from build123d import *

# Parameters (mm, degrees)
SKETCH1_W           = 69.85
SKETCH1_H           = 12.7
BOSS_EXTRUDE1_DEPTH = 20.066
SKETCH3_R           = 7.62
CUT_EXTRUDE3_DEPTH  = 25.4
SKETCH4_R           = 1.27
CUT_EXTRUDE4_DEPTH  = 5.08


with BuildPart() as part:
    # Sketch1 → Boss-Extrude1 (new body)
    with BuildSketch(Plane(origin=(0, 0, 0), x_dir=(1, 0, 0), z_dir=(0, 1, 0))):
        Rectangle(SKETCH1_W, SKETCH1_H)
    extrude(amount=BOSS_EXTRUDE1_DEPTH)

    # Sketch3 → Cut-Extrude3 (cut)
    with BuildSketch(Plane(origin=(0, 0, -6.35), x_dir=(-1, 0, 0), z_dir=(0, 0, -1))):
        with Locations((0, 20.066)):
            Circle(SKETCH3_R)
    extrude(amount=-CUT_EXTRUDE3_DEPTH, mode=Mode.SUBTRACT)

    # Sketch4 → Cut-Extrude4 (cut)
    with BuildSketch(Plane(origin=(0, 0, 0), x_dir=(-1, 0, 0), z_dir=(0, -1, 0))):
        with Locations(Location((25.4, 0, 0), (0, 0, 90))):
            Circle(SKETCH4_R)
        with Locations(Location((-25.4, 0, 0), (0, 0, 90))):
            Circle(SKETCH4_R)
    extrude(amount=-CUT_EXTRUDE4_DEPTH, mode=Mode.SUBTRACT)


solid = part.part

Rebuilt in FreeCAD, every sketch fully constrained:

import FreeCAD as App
import Part
import Sketcher
from FreeCAD import Vector
Q = App.Units.Quantity

doc = App.newDocument("Part")
body = doc.addObject("PartDesign::Body", "Body")

sketch1 = body.newObject("Sketcher::SketchObject", "Sketch")
sketch1.AttachmentSupport = (doc.getObject("XZ_Plane"), [""])
sketch1.MapMode = "FlatFace"
sketch1.addGeometry([
    Part.LineSegment(Vector(-35, -6, 0), Vector(-35, 6, 0)),
    Part.LineSegment(Vector(-35, 6, 0), Vector(35, 6, 0)),
    Part.LineSegment(Vector(35, 6, 0), Vector(35, -6, 0)),
    Part.LineSegment(Vector(35, -6, 0), Vector(-35, -6, 0)),
], False)
sketch1.addConstraint([
    Sketcher.Constraint("Coincident", 0, 2, 1, 1),
    Sketcher.Constraint("Coincident", 1, 2, 2, 1),
    Sketcher.Constraint("Coincident", 2, 2, 3, 1),
    Sketcher.Constraint("Coincident", 3, 2, 0, 1),
    Sketcher.Constraint("Vertical", 0),
    Sketcher.Constraint("Horizontal", 1),
    Sketcher.Constraint("Vertical", 2),
    Sketcher.Constraint("Horizontal", 3),
    Sketcher.Constraint("Symmetric", 0, 2, 2, 2, -1, 1),
    Sketcher.Constraint("DistanceY", 0, 1, 0, 2, Q("0.5 in")),
    Sketcher.Constraint("DistanceX", 1, 1, 1, 2, Q("2.75 in")),
])
pad1 = body.newObject("PartDesign::Pad", "Pad")
pad1.Profile = sketch1
pad1.Length = Q("0.79 in")
pad1.Reversed = True

sketch2 = body.newObject("Sketcher::SketchObject", "Sketch001")
sketch2.AttachmentSupport = (doc.getObject("XY_Plane"), [""])
sketch2.MapMode = "FlatFace"
sketch2.AttachmentOffset = App.Placement(Vector(0, 0, -0.25 * 25.4), App.Rotation())
sketch2.addGeometry(Part.Circle(Vector(0, 20, 0), Vector(0, 0, 1), 8), False)
sketch2.addConstraint([
    Sketcher.Constraint("PointOnObject", 0, 3, -2),
    Sketcher.Constraint("Diameter", 0, Q("0.6 in")),
    Sketcher.Constraint("DistanceY", -1, 1, 0, 3, Q("0.79 in")),
])
pocket1 = body.newObject("PartDesign::Pocket", "Pocket")
pocket1.Profile = sketch2
pocket1.Length = Q("1 in")
pocket1.Reversed = True

sketch3 = body.newObject("Sketcher::SketchObject", "Sketch002")
sketch3.AttachmentSupport = (doc.getObject("XZ_Plane"), [""])
sketch3.MapMode = "FlatFace"
sketch3.addGeometry([
    Part.Circle(Vector(-25.4, 0, 0), Vector(0, 0, 1), 1.3),
    Part.Circle(Vector(25.4, 0, 0), Vector(0, 0, 1), 1.3),
], False)
sketch3.addConstraint([
    Sketcher.Constraint("Equal", 0, 1),
    Sketcher.Constraint("Symmetric", 0, 3, 1, 3, -1, 1),
    Sketcher.Constraint("PointOnObject", 0, 3, -1),
    Sketcher.Constraint("Diameter", 0, Q("0.1 in")),
    Sketcher.Constraint("DistanceX", 0, 3, -1, 1, Q("1 in")),
])
pocket2 = body.newObject("PartDesign::Pocket", "Pocket001")
pocket2.Profile = sketch3
pocket2.Length = Q("0.2 in")

doc.recompute()
